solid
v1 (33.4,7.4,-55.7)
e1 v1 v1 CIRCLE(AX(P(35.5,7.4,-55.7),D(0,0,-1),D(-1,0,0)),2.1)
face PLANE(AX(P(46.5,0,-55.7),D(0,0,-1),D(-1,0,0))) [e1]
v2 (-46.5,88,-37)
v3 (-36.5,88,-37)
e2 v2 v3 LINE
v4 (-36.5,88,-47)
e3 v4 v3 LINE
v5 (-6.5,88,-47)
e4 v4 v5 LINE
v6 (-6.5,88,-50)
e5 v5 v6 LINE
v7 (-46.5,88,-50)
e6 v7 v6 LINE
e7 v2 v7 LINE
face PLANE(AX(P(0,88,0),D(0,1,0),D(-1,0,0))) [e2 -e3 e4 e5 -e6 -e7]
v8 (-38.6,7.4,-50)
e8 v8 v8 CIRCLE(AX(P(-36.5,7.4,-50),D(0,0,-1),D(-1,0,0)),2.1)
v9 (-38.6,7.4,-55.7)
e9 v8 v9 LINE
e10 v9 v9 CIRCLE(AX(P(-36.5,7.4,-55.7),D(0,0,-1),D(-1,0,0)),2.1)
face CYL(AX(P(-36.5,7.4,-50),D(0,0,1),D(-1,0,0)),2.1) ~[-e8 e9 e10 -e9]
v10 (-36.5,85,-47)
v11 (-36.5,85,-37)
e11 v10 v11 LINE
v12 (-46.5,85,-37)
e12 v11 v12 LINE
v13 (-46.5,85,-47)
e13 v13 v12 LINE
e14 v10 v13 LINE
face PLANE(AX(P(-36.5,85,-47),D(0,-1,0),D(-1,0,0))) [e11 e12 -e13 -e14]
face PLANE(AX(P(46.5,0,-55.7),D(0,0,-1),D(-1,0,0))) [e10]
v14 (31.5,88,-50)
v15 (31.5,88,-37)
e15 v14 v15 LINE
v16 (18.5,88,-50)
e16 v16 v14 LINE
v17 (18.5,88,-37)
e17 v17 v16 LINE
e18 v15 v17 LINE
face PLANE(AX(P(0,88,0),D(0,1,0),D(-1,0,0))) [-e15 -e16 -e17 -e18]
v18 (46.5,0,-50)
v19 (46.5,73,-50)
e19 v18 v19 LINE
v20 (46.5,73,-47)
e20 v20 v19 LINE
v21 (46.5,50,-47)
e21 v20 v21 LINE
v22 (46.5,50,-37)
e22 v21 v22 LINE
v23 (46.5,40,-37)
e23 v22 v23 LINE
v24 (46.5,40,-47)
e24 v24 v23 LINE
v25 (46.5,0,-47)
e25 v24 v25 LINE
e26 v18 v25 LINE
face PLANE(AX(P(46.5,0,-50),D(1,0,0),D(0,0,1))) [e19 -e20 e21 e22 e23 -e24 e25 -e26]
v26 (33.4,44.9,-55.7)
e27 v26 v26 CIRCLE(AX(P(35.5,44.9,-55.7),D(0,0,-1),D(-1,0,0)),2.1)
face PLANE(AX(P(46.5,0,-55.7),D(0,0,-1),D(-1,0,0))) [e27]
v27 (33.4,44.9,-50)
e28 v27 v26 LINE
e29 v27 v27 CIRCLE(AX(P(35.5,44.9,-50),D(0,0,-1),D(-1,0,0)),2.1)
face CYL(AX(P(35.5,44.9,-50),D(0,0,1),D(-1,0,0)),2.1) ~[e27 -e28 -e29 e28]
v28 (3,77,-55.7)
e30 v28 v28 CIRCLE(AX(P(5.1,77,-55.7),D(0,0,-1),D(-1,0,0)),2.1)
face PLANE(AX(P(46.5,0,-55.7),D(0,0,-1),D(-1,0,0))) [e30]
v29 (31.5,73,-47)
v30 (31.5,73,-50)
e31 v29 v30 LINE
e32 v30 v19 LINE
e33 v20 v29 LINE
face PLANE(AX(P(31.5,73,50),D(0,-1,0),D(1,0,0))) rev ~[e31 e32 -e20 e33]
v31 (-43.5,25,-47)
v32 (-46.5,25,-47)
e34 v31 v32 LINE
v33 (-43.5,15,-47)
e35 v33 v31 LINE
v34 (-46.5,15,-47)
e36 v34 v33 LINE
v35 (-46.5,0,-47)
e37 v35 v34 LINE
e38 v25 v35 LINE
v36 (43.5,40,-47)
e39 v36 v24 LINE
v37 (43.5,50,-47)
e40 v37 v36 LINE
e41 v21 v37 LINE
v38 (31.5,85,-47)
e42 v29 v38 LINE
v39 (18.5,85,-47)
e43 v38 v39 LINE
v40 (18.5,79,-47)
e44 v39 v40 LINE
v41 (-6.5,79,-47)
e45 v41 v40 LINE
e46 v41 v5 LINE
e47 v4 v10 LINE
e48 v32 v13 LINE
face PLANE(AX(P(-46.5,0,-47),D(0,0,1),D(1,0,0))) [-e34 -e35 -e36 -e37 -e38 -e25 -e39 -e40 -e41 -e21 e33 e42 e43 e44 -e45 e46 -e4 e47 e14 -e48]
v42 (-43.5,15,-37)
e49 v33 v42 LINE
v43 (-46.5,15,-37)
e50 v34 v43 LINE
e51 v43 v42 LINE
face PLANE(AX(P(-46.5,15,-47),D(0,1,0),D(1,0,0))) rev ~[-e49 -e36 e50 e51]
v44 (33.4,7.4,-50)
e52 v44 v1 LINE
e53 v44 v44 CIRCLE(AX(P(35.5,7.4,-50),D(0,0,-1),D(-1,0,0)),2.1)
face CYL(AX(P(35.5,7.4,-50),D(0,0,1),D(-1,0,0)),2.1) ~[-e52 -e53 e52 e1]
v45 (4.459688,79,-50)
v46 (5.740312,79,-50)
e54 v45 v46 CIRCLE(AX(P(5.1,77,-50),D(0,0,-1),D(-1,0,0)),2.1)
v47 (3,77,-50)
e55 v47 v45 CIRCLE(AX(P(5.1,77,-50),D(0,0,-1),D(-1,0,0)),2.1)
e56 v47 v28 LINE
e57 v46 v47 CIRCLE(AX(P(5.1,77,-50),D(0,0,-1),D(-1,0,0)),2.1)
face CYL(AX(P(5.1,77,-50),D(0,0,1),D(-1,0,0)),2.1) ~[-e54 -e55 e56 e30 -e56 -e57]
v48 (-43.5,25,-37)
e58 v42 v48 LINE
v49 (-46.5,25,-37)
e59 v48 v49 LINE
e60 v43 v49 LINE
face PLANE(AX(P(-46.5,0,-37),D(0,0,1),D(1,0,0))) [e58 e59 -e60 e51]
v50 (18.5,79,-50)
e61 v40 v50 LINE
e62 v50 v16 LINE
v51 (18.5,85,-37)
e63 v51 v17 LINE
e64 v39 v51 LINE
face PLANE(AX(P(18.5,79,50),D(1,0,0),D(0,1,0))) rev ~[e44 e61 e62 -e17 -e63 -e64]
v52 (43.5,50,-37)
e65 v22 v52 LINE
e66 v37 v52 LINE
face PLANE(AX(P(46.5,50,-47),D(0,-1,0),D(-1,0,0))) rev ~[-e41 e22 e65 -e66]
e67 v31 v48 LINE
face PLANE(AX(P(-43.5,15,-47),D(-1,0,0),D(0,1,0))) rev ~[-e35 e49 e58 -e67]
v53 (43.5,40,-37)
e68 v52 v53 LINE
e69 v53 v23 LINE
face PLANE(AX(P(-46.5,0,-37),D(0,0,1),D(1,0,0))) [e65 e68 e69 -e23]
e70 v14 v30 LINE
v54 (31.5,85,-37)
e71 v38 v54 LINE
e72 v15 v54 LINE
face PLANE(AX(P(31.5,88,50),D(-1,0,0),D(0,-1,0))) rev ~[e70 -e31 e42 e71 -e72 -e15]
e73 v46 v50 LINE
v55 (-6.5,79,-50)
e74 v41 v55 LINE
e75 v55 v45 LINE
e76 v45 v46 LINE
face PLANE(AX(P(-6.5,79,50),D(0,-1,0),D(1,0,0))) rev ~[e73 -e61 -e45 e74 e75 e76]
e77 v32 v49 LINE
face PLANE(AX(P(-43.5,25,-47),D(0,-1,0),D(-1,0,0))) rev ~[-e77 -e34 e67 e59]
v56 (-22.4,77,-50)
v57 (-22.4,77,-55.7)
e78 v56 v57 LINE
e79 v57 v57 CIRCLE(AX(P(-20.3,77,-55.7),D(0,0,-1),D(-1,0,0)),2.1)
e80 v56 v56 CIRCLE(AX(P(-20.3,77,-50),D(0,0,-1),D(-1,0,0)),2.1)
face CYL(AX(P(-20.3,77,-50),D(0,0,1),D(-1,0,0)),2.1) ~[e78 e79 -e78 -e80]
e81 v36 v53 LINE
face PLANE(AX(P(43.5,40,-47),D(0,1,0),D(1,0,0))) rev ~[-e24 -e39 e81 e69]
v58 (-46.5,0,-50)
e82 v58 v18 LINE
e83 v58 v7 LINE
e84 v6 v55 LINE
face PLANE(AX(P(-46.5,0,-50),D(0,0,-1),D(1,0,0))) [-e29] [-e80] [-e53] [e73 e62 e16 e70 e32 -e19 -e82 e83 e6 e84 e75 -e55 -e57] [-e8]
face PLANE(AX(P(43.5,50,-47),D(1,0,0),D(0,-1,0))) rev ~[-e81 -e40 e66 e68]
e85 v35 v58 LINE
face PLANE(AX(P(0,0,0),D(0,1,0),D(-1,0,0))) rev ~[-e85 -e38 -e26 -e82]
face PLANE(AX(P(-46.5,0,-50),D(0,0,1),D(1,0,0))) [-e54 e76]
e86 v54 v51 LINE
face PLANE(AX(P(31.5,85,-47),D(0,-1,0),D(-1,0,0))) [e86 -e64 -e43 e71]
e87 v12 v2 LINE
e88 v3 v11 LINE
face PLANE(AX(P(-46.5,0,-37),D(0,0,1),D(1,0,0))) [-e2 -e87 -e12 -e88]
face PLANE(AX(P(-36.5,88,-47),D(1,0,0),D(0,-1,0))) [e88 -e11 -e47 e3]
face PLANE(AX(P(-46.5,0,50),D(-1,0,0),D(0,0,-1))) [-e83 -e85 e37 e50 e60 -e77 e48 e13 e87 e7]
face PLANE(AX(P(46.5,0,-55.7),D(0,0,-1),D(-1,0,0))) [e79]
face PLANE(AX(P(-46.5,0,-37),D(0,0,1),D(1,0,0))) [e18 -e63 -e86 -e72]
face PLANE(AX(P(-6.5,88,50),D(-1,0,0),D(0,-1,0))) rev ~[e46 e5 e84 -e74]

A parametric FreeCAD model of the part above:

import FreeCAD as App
import Part
import Sketcher
from FreeCAD import Vector


def add_polygon(sketch, points):
    """Adds a closed chain of lines whose ends are joined by coincident constraints."""
    first, n = sketch.GeometryCount, len(points)
    for a, b in zip(points, points[1:] + points[:1]):
        sketch.addGeometry(Part.LineSegment(App.Vector(*a, 0), App.Vector(*b, 0)), False)
    for i in range(n):
        sketch.addConstraint(Sketcher.Constraint("Coincident", first + i, 2, first + (i + 1) % n, 1))

doc = App.newDocument("Part")
body = doc.addObject("PartDesign::Body", "Body")

sketch1 = body.newObject("Sketcher::SketchObject", "Sketch")
sketch1.AttachmentSupport = (doc.getObject("XZ_Plane"), [""])
sketch1.MapMode = "FlatFace"
add_polygon(sketch1, [(-46, 50), (46, 50), (46, -50), (-46, -50)])
sketch1.addConstraint(Sketcher.Constraint("Horizontal", 0))
sketch1.addConstraint(Sketcher.Constraint("Vertical", 1))
sketch1.addConstraint(Sketcher.Constraint("Horizontal", 2))
sketch1.addConstraint(Sketcher.Constraint("Vertical", 3))
sketch1.addConstraint(Sketcher.Constraint("Symmetric", 0, 2, 2, 2, -1, 1))
sketch1.addConstraint(Sketcher.Constraint("DistanceX", 0, 1, 0, 2, 93.0))
sketch1.addConstraint(Sketcher.Constraint("DistanceY", 1, 2, 1, 1, 100.0))
pad1 = body.newObject("PartDesign::Pad", "Pad")
pad1.Profile = sketch1
pad1.Length = 88
pad1.Reversed = True

sketch2 = body.newObject("Sketcher::SketchObject", "Sketch001")
sketch2.AttachmentSupport = (doc.getObject("XZ_Plane"), [""])
sketch2.MapMode = "FlatFace"
add_polygon(sketch2, [(44, 47), (-44, 47), (-44, -47), (44, -47)])
sketch2.addConstraint(Sketcher.Constraint("Horizontal", 0))
sketch2.addConstraint(Sketcher.Constraint("Vertical", 1))
sketch2.addConstraint(Sketcher.Constraint("Horizontal", 2))
sketch2.addConstraint(Sketcher.Constraint("Vertical", 3))
sketch2.addConstraint(Sketcher.Constraint("Symmetric", 0, 2, 2, 2, -1, 1))
sketch2.addConstraint(Sketcher.Constraint("DistanceX", 0, 2, 0, 1, 87.0))
sketch2.addConstraint(Sketcher.Constraint("DistanceY", 1, 2, 1, 1, 94.0))
pocket1 = body.newObject("PartDesign::Pocket", "Pocket")
pocket1.Profile = sketch2
pocket1.Length = 85

sketch3 = body.newObject("Sketcher::SketchObject", "Sketch002")
sketch3.AttachmentSupport = (doc.getObject("XY_Plane"), [""])
sketch3.MapMode = "FlatFace"
sketch3.AttachmentOffset = App.Placement(Vector(0, 0, 50), App.Rotation())
add_polygon(sketch3, [(46, 88), (32, 88), (32, 73), (46, 73)])
sketch3.addConstraint(Sketcher.Constraint("Horizontal", 0))
sketch3.addConstraint(Sketcher.Constraint("Vertical", 1))
sketch3.addConstraint(Sketcher.Constraint("Horizontal", 2))
sketch3.addConstraint(Sketcher.Constraint("Vertical", 3))
sketch3.addConstraint(Sketcher.Constraint("Equal", 2, 1))
sketch3.addConstraint(Sketcher.Constraint("DistanceX", 0, 2, 0, 1, 15.0))
sketch3.addConstraint(Sketcher.Constraint("DistanceY", -1, 1, 0, 2, 88.0))
sketch3.addConstraint(Sketcher.Constraint("DistanceX", -1, 1, 0, 2, 31.5))
pocket2 = body.newObject("PartDesign::Pocket", "Pocket001")
pocket2.Profile = sketch3
pocket2.Length = 100

sketch4 = body.newObject("Sketcher::SketchObject", "Sketch003")
sketch4.AttachmentSupport = (doc.getObject("XY_Plane"), [""])
sketch4.MapMode = "FlatFace"
sketch4.AttachmentOffset = App.Placement(Vector(0, 0, 50), App.Rotation())
sketch4.addGeometry(Part.Circle(Vector(26.5, 68, 0), Vector(0, 0, 1), 1.8), False)
sketch4.addGeometry(Part.Circle(Vector(-13.5, 68, 0), Vector(0, 0, 1), 1.8), False)
sketch4.addGeometry(Part.Circle(Vector(26.5, 30, 0), Vector(0, 0, 1), 1.8), False)
sketch4.addGeometry(Part.Circle(Vector(-13.5, 30, 0), Vector(0, 0, 1), 1.8), False)
sketch4.addConstraint(Sketcher.Constraint("Equal", 0, 1))
sketch4.addConstraint(Sketcher.Constraint("Equal", 1, 2))
sketch4.addConstraint(Sketcher.Constraint("Equal", 2, 3))
sketch4.addConstraint(Sketcher.Constraint("Horizontal", 0, 3, 1, 3))
sketch4.addConstraint(Sketcher.Constraint("Horizontal", 2, 3, 3, 3))
sketch4.addConstraint(Sketcher.Constraint("Vertical", 0, 3, 2, 3))
sketch4.addConstraint(Sketcher.Constraint("Vertical", 1, 3, 3, 3))
sketch4.addConstraint(Sketcher.Constraint("Diameter", 0, 3.5))
sketch4.addConstraint(Sketcher.Constraint("DistanceX", 1, 3, 0, 3, 40.0))
sketch4.addConstraint(Sketcher.Constraint("DistanceY", 2, 3, 0, 3, 38.0))
sketch4.addConstraint(Sketcher.Constraint("DistanceY", -1, 1, 0, 3, 68.0))
sketch4.addConstraint(Sketcher.Constraint("DistanceX", -1, 1, 0, 3, 26.5))
pocket3 = body.newObject("PartDesign::Pocket", "Pocket002")
pocket3.Profile = sketch4
pocket3.Length = 3

sketch5 = body.newObject("Sketcher::SketchObject", "Sketch004")
sketch5.AttachmentSupport = (doc.getObject("XY_Plane"), [""])
sketch5.MapMode = "FlatFace"
sketch5.AttachmentOffset = App.Placement(Vector(0, 0, -50), App.Rotation())
sketch5.addGeometry(Part.Circle(Vector(-20.3, 77, 0), Vector(0, 0, 1), 2.1), False)
sketch5.addGeometry(Part.Circle(Vector(5.1, 77, 0), Vector(0, 0, 1), 2.1), False)
sketch5.addGeometry(Part.Circle(Vector(35.5, 44.9, 0), Vector(0, 0, 1), 2.1), False)
sketch5.addGeometry(Part.Circle(Vector(35.5, 7.4, 0), Vector(0, 0, 1), 2.1), False)
sketch5.addGeometry(Part.Circle(Vector(-36.5, 7.4, 0), Vector(0, 0, 1), 2.1), False)
sketch5.addConstraint(Sketcher.Constraint("Equal", 0, 1))
sketch5.addConstraint(Sketcher.Constraint("Equal", 1, 2))
sketch5.addConstraint(Sketcher.Constraint("Equal", 2, 3))
sketch5.addConstraint(Sketcher.Constraint("Equal", 3, 4))
sketch5.addConstraint(Sketcher.Constraint("Horizontal", 0, 3, 1, 3))
sketch5.addConstraint(Sketcher.Constraint("Horizontal", 3, 3, 4, 3))
sketch5.addConstraint(Sketcher.Constraint("Vertical", 2, 3, 3, 3))
sketch5.addConstraint(Sketcher.Constraint("Diameter", 0, 4.2))
sketch5.addConstraint(Sketcher.Constraint("DistanceX", 0, 3, 1, 3, 25.4))
sketch5.addConstraint(Sketcher.Constraint("DistanceY", 3, 3, 2, 3, 37.5))
sketch5.addConstraint(Sketcher.Constraint("DistanceY", -1, 1, 0, 3, 77.0))
sketch5.addConstraint(Sketcher.Constraint("DistanceX", 4, 3, 3, 3, 72.0))
sketch5.addConstraint(Sketcher.Constraint("DistanceX", 0, 3, -1, 1, 20.3))
sketch5.addConstraint(Sketcher.Constraint("DistanceX", -1, 1, 2, 3, 35.5))
sketch5.addConstraint(Sketcher.Constraint("DistanceY", -1, 1, 2, 3, 44.9))
pad2 = body.newObject("PartDesign::Pad", "Pad001")
pad2.Profile = sketch5
pad2.Length = 5.7
pad2.Reversed = True

sketch6 = body.newObject("Sketcher::SketchObject", "Sketch005")
sketch6.AttachmentSupport = (doc.getObject("XY_Plane"), [""])
sketch6.MapMode = "FlatFace"
sketch6.AttachmentOffset = App.Placement(Vector(0, 0, 50), App.Rotation())
add_polygon(sketch6, [(18, 88), (-6, 88), (-6, 79), (18, 79)])
sketch6.addConstraint(Sketcher.Constraint("Horizontal", 0))
sketch6.addConstraint(Sketcher.Constraint("Vertical", 1))
sketch6.addConstraint(Sketcher.Constraint("Horizontal", 2))
sketch6.addConstraint(Sketcher.Constraint("Vertical", 3))
sketch6.addConstraint(Sketcher.Constraint("DistanceX", 0, 2, 0, 1, 25.0))
sketch6.addConstraint(Sketcher.Constraint("DistanceY", 1, 2, 1, 1, 9.0))
sketch6.addConstraint(Sketcher.Constraint("DistanceY", -1, 1, 0, 2, 88.0))
sketch6.addConstraint(Sketcher.Constraint("DistanceX", 0, 2, -1, 1, 6.5))
pocket4 = body.newObject("PartDesign::Pocket", "Pocket003")
pocket4.Profile = sketch6
pocket4.Length = 100

sketch7 = body.newObject("Sketcher::SketchObject", "Sketch006")
sketch7.AttachmentSupport = (doc.getObject("XY_Plane"), [""])
sketch7.MapMode = "FlatFace"
sketch7.AttachmentOffset = App.Placement(Vector(0, 0, 50), App.Rotation())
add_polygon(sketch7, [(-46, 90), (-46, 0), (48, 0), (48, 90)])
sketch7.addConstraint(Sketcher.Constraint("Vertical", 0))
sketch7.addConstraint(Sketcher.Constraint("Horizontal", 1))
sketch7.addConstraint(Sketcher.Constraint("Vertical", 2))
sketch7.addConstraint(Sketcher.Constraint("Horizontal", 3))
sketch7.addConstraint(Sketcher.Constraint("PointOnObject", 0, 2, -1))
sketch7.addConstraint(Sketcher.Constraint("DistanceX", 0, 2, -1, 1, 46.5))
sketch7.addConstraint(Sketcher.Constraint("DistanceX", 1, 1, 1, 2, 94.9117))
sketch7.addConstraint(Sketcher.Constraint("DistanceY", 0, 2, 0, 1, 90.3204))
pocket5 = body.newObject("PartDesign::Pocket", "Pocket004")
pocket5.Profile = sketch7
pocket5.Length = 97

sketch8 = body.newObject("Sketcher::SketchObject", "Sketch007")
sketch8.AttachmentSupport = (doc.getObject("XY_Plane"), [""])
sketch8.MapMode = "FlatFace"
sketch8.AttachmentOffset = App.Placement(Vector(0, 0, -47), App.Rotation())
add_polygon(sketch8, [(31.5, 85), (31.5, 88), (18.5, 88), (18.5, 85)])
add_polygon(sketch8, [(43.5, 40), (46.5, 40), (46.5, 50), (43.5, 50)])
add_polygon(sketch8, [(-43.5, 25), (-46.5, 25), (-46.5, 15), (-43.5, 15)])
add_polygon(sketch8, [(-36.5, 88), (-46.5, 88), (-46.5, 85), (-36.5, 85)])
sketch8.addConstraint(Sketcher.Constraint("Vertical", 0))
sketch8.addConstraint(Sketcher.Constraint("Horizontal", 1))
sketch8.addConstraint(Sketcher.Constraint("Vertical", 2))
sketch8.addConstraint(Sketcher.Constraint("Horizontal", 3))
sketch8.addConstraint(Sketcher.Constraint("Horizontal", 4))
sketch8.addConstraint(Sketcher.Constraint("Vertical", 5))
sketch8.addConstraint(Sketcher.Constraint("Horizontal", 6))
sketch8.addConstraint(Sketcher.Constraint("Vertical", 7))
sketch8.addConstraint(Sketcher.Constraint("Horizontal", 8))
sketch8.addConstraint(Sketcher.Constraint("Vertical", 9))
sketch8.addConstraint(Sketcher.Constraint("Horizontal", 10))
sketch8.addConstraint(Sketcher.Constraint("Vertical", 11))
sketch8.addConstraint(Sketcher.Constraint("Horizontal", 12))
sketch8.addConstraint(Sketcher.Constraint("Vertical", 13))
sketch8.addConstraint(Sketcher.Constraint("Horizontal", 14))
sketch8.addConstraint(Sketcher.Constraint("Vertical", 15))
sketch8.addConstraint(Sketcher.Constraint("Horizontal", 1, 2, 12, 2))
sketch8.addConstraint(Sketcher.Constraint("Horizontal", 3, 2, 13, 2))
sketch8.addConstraint(Sketcher.Constraint("Vertical", 9, 2, 12, 2))
sketch8.addConstraint(Sketcher.Constraint("Equal", 6, 8))
sketch8.addConstraint(Sketcher.Constraint("Equal", 10, 0))
sketch8.addConstraint(Sketcher.Constraint("Equal", 14, 5))
sketch8.addConstraint(Sketcher.Constraint("Equal", 7, 9))
sketch8.addConstraint(Sketcher.Constraint("DistanceX", 4, 1, 4, 2, 3.0))
sketch8.addConstraint(Sketcher.Constraint("DistanceX", 12, 2, 12, 1, 10.0))
sketch8.addConstraint(Sketcher.Constraint("DistanceY", -1, 1, 4, 2, 40.0))
sketch8.addConstraint(Sketcher.Constraint("DistanceY", -1, 1, 9, 2, 15.0))
sketch8.addConstraint(Sketcher.Constraint("DistanceX", 3, 2, 4, 2, 15.0))
sketch8.addConstraint(Sketcher.Constraint("DistanceX", 1, 2, 1, 1, 13.0))
sketch8.addConstraint(Sketcher.Constraint("DistanceY", -1, 1, 0, 2, 88.0))
sketch8.addConstraint(Sketcher.Constraint("DistanceX", 8, 2, 2, 2, 65.0))
sketch8.addConstraint(Sketcher.Constraint("DistanceX", -1, 1, 0, 2, 31.5))
pad3 = body.newObject("PartDesign::Pad", "Pad002")
pad3.Profile = sketch8
pad3.Length = 10

doc.recompute()
